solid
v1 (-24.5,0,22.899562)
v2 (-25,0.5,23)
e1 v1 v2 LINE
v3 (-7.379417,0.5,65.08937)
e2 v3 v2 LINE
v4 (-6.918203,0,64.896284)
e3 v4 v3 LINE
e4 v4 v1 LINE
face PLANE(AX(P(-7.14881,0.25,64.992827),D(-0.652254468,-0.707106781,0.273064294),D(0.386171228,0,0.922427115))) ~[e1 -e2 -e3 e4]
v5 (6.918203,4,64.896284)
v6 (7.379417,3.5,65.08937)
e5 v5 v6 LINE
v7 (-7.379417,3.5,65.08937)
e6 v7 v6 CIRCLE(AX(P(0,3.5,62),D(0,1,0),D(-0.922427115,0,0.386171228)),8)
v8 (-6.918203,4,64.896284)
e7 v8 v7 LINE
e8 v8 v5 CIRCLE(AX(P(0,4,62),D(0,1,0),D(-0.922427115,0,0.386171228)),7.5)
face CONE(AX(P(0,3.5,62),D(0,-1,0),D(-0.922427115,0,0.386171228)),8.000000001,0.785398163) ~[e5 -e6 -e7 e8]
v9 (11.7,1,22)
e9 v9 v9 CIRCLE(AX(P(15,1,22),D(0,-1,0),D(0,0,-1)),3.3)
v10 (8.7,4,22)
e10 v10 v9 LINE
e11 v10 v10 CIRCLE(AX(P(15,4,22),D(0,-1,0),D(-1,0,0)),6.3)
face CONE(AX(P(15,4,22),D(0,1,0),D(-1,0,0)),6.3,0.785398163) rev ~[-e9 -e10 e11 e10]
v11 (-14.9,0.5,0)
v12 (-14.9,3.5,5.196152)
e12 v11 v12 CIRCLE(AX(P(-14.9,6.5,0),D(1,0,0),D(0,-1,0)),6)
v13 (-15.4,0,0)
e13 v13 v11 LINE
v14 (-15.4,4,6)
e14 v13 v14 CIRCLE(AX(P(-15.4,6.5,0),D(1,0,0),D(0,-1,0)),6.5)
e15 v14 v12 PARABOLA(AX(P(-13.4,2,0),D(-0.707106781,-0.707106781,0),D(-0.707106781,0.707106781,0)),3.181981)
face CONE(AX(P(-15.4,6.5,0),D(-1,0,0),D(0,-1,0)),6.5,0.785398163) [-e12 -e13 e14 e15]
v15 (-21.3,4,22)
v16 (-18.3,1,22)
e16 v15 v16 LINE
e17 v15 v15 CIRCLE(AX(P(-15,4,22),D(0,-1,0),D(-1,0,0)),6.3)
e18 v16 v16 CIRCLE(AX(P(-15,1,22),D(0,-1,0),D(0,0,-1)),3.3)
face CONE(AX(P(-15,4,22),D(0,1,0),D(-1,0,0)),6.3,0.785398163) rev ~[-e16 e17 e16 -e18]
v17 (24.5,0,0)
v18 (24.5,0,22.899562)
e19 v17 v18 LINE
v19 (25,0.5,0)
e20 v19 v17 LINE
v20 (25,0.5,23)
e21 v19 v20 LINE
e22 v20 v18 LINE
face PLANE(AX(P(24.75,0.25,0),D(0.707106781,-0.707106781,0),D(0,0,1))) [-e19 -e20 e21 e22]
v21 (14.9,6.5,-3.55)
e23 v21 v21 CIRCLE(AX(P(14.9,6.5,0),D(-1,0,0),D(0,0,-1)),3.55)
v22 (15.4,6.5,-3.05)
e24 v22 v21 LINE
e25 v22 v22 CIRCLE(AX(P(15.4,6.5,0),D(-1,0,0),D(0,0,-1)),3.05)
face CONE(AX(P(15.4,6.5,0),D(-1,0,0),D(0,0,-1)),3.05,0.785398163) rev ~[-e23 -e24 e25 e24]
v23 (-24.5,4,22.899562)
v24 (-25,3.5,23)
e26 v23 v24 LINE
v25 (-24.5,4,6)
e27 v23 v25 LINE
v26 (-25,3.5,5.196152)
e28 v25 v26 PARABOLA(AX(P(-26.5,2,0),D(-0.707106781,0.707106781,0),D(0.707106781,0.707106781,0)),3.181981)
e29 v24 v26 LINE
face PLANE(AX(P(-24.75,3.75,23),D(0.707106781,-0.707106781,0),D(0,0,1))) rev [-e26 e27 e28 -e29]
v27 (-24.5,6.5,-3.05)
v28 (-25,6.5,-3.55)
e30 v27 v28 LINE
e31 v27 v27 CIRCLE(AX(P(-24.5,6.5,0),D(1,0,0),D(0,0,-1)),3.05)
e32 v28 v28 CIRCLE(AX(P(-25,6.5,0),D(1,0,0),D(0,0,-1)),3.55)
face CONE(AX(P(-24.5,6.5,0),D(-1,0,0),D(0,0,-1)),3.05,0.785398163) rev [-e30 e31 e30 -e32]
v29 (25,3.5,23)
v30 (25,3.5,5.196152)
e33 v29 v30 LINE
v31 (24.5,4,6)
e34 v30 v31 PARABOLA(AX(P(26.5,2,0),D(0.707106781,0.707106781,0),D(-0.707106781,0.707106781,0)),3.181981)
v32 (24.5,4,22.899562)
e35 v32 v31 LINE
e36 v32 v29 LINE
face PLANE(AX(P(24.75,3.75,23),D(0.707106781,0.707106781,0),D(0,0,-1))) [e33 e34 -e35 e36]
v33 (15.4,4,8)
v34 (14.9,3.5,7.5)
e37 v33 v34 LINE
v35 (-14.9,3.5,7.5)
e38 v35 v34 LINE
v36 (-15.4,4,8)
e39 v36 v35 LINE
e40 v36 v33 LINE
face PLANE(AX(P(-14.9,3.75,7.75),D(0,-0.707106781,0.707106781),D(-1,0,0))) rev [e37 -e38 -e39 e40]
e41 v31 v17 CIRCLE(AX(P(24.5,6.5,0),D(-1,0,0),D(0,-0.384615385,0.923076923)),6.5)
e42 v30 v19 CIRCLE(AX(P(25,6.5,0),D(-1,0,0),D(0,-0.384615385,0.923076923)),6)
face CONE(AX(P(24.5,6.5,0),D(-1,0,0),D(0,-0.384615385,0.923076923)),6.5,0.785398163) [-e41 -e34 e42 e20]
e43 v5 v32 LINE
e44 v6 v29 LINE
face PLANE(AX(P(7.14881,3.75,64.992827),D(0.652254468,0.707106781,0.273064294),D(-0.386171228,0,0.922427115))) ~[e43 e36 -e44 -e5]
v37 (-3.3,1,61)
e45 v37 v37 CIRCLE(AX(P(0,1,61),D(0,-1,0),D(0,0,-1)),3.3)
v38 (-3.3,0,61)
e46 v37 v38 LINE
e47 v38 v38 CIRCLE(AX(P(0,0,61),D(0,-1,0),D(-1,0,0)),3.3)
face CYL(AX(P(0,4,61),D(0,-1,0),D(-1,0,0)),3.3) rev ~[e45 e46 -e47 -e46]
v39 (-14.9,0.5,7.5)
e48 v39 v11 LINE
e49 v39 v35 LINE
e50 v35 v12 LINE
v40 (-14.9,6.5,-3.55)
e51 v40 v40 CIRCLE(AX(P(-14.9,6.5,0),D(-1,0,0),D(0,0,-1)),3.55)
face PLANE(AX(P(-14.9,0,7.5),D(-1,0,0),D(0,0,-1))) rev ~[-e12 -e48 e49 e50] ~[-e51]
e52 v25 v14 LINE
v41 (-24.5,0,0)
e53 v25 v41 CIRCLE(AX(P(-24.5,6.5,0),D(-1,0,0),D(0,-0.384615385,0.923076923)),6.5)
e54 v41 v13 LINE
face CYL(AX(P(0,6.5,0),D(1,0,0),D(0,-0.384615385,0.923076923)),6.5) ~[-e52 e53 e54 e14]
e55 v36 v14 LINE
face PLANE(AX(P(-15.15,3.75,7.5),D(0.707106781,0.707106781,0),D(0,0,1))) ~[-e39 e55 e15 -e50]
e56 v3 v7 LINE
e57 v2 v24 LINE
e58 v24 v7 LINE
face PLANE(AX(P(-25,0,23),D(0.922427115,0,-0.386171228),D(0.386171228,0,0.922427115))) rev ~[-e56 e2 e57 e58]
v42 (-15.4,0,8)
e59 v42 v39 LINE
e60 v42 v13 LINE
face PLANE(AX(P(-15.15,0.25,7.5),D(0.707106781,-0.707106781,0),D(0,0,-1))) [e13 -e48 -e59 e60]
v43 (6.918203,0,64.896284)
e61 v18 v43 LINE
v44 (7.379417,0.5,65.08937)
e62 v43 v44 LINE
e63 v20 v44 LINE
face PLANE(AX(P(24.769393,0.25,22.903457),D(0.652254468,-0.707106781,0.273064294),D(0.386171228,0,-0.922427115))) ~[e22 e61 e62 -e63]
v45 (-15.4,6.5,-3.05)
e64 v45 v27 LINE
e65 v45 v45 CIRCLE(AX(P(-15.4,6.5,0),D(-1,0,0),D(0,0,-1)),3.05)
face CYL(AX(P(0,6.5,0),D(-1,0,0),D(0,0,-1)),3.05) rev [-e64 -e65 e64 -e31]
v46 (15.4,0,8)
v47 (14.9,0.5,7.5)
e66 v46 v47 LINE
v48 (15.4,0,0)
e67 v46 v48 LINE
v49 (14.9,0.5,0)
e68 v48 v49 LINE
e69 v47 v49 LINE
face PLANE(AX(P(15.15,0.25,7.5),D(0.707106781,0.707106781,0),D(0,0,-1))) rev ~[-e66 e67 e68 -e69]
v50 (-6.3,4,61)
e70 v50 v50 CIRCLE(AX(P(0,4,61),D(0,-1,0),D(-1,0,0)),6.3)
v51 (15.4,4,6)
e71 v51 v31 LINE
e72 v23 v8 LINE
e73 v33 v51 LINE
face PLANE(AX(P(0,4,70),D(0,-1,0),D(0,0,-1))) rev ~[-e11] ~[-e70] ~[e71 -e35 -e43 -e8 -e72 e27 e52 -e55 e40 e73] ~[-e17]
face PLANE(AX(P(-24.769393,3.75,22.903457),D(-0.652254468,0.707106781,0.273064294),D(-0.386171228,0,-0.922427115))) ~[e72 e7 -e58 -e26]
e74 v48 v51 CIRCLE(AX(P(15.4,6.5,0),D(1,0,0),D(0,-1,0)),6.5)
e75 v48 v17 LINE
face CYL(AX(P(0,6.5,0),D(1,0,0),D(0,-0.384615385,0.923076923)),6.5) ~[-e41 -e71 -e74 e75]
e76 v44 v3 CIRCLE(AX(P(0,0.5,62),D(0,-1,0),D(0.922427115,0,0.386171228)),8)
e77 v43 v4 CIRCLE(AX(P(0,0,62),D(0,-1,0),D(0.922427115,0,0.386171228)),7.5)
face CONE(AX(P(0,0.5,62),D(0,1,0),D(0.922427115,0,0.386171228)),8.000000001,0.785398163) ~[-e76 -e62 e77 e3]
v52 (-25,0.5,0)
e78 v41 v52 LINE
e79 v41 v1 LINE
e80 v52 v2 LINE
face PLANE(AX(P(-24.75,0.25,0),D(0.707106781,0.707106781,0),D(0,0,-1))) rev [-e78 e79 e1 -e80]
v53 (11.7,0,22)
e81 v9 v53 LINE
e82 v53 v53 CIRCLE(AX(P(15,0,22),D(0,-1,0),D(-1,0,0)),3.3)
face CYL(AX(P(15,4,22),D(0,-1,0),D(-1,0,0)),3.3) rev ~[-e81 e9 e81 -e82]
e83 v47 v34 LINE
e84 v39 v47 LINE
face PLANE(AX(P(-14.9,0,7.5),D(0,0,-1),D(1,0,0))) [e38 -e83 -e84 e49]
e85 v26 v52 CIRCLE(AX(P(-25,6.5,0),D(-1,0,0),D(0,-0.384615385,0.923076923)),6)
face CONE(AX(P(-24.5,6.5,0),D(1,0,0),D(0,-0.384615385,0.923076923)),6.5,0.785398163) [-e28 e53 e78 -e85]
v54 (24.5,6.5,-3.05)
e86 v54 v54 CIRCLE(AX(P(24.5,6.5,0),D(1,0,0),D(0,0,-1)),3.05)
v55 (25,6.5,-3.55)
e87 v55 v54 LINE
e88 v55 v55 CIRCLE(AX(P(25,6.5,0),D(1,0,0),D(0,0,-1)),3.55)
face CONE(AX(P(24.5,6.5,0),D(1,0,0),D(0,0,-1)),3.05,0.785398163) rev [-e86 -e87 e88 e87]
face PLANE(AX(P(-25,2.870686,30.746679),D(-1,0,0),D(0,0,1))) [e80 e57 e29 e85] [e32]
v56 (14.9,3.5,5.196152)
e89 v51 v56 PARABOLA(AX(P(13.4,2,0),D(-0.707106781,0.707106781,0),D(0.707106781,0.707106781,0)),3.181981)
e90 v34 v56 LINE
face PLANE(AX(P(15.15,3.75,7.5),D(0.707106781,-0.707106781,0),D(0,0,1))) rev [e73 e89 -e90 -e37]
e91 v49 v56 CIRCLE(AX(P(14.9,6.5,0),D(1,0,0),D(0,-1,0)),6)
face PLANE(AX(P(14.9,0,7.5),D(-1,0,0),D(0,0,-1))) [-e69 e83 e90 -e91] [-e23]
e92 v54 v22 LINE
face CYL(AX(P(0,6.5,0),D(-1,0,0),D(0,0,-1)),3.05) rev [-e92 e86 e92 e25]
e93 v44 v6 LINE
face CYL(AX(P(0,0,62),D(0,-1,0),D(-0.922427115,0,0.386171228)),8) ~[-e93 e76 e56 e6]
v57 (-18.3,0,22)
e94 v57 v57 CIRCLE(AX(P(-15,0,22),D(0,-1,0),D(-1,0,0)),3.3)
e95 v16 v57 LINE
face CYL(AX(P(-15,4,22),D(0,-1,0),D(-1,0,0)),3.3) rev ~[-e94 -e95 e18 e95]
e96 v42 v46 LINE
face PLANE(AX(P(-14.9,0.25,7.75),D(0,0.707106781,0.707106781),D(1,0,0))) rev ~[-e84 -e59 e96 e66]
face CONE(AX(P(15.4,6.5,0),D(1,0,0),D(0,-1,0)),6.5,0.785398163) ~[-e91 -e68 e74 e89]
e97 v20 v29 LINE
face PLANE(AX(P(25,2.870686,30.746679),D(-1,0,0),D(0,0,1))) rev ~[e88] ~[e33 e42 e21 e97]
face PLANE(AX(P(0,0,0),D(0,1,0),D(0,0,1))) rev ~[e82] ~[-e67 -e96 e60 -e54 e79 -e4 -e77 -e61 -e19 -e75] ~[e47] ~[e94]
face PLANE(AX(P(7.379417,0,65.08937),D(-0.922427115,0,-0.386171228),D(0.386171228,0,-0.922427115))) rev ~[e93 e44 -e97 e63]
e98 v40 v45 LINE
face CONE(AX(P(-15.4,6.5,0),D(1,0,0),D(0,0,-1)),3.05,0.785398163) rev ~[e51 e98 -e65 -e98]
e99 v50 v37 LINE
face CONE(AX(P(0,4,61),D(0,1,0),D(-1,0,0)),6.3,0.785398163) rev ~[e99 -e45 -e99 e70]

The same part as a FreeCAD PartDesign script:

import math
import FreeCAD as App
import Part
import Sketcher

V = App.Vector
Q = App.Units.Quantity


def edges_at(feature, points):
    """Names of the edges that pass closest to the given points."""
    edges = feature.Shape.Edges
    near = lambda p: min(range(len(edges)), key=lambda i: edges[i].distToShape(Part.Vertex(*p))[0])
    return sorted({f"Edge{near(p) + 1}" for p in points})

doc = App.newDocument("Part")
params = doc.addObject("Spreadsheet::Sheet", "Params")
for row, (alias, value) in enumerate([
    ("sketch1_diameter", "6.1 mm"),
    ("sketch1_radius", "6.5 mm"),
    ("sketch1_width", "4 mm"),
    ("sketch1_height", "70 mm"),
    ("pad1_length", "50 mm"),
    ("sketch2_radius", "8 mm"),
    ("sketch2_width", "50 mm"),
    ("sketch2_height", "20 mm"),
    ("sketch2_height2", "57 mm"),
    ("sketch2_width2", "29.8 mm"),
    ("sketch3_diameter", "6.6 mm"),
    ("hole_diameter", "6.6 mm"),
    ("hole_depth", "38.01716 mm"),
    ("hole_csink_diameter", "12.6 mm"),
    ("chamfer_size", "0.5 mm"),
    ("chamfer2_size", "0.5 mm"),
], start=1):
    params.set(f"A{row}", alias)
    params.set(f"B{row}", "=" + value)
    params.setAlias(f"B{row}", alias)

body = doc.addObject("PartDesign::Body", "Body")

sketch1 = doc.addObject("Sketcher::SketchObject", "Sketch")
body.addObject(sketch1)
sketch1.AttachmentSupport = (doc.YZ_Plane, [""])
sketch1.MapMode = "FlatFace"
sketch1.addGeometry([
    Part.LineSegment(V(0, 70, 0), V(0, 0, 0)),
    Part.ArcOfCircle(Part.Circle(V(6.5, 0, 0), V(0, 0, 1), 6.5), math.radians(180), math.radians(473)),
    Part.LineSegment(V(4, 6, 0), V(4, 70, 0)),
    Part.LineSegment(V(4, 70, 0), V(0, 70, 0)),
    Part.Circle(V(6.5, 0, 0), V(0, 0, 1), 3),
], False)
sketch1.addConstraint([
    Sketcher.Constraint("Tangent", 0, 2, 1, 1),
    Sketcher.Constraint("Coincident", 1, 2, 2, 1),
    Sketcher.Constraint("Coincident", 2, 2, 3, 1),
    Sketcher.Constraint("Coincident", 3, 2, 0, 1),
    Sketcher.Constraint("Vertical", 0),
    Sketcher.Constraint("Vertical", 2),
    Sketcher.Constraint("Horizontal", 3),
    Sketcher.Constraint("Coincident", 0, 2, -1, 1),
    Sketcher.Constraint("Coincident", 4, 3, 1, 3),
    Sketcher.Constraint("Diameter", 4, Q("6.1 mm")),
    Sketcher.Constraint("Radius", 1, Q("6.5 mm")),
    Sketcher.Constraint("DistanceX", 3, 2, 3, 1, Q("4 mm")),
    Sketcher.Constraint("DistanceY", 0, 2, 0, 1, Q("70 mm")),
])
sketch1.setExpression("Constraints[9]", "Params.sketch1_diameter")
sketch1.setExpression("Constraints[10]", "Params.sketch1_radius")
sketch1.setExpression("Constraints[11]", "Params.sketch1_width")
sketch1.setExpression("Constraints[12]", "Params.sketch1_height")
pad1 = doc.addObject("PartDesign::Pad", "Pad")
body.addObject(pad1)
pad1.Profile = sketch1
pad1.setExpression("Length", "Params.pad1_length")
pad1.Midplane = True

sketch2 = doc.addObject("Sketcher::SketchObject", "Sketch001")
body.addObject(sketch2)
sketch2.AttachmentSupport = (doc.XZ_Plane, [""])
sketch2.MapMode = "FlatFace"
sketch2.addGeometry([
    Part.LineSegment(V(-15, -12, 0), V(-15, 8, 0)),
    Part.LineSegment(V(-15, 8, 0), V(15, 8, 0)),
    Part.LineSegment(V(15, 8, 0), V(15, -12, 0)),
    Part.LineSegment(V(15, -12, 0), V(-15, -12, 0)),
    Part.LineSegment(V(-7, 65, 0), V(-25, 23, 0)),
    Part.LineSegment(V(-25, 23, 0), V(-25, 80, 0)),
    Part.LineSegment(V(-25, 80, 0), V(25, 80, 0)),
    Part.LineSegment(V(25, 80, 0), V(25, 23, 0)),
    Part.LineSegment(V(25, 23, 0), V(7, 65, 0)),
    Part.ArcOfCircle(Part.Circle(V(0, 62, 0), V(0, 0, 1), 8), math.radians(23), math.radians(157)),
], False)
sketch2.addConstraint([
    Sketcher.Constraint("Coincident", 0, 2, 1, 1),
    Sketcher.Constraint("Coincident", 1, 2, 2, 1),
    Sketcher.Constraint("Coincident", 2, 2, 3, 1),
    Sketcher.Constraint("Coincident", 3, 2, 0, 1),
    Sketcher.Constraint("Coincident", 4, 2, 5, 1),
    Sketcher.Constraint("Coincident", 5, 2, 6, 1),
    Sketcher.Constraint("Coincident", 6, 2, 7, 1),
    Sketcher.Constraint("Coincident", 7, 2, 8, 1),
    Sketcher.Constraint("Tangent", 8, 2, 9, 1),
    Sketcher.Constraint("Tangent", 9, 2, 4, 1),
    Sketcher.Constraint("Vertical", 0),
    Sketcher.Constraint("Horizontal", 1),
    Sketcher.Constraint("Vertical", 2),
    Sketcher.Constraint("Horizontal", 3),
    Sketcher.Constraint("Vertical", 5),
    Sketcher.Constraint("Horizontal", 6),
    Sketcher.Constraint("Vertical", 7),
    Sketcher.Constraint("Symmetric", 4, 2, 7, 2, -2),
    Sketcher.Constraint("PointOnObject", 9, 3, -2),
    Sketcher.Constraint("Radius", 9, Q("8 mm")),
    Sketcher.Constraint("DistanceX", 6, 1, 6, 2, Q("50 mm")),
    Sketcher.Constraint("DistanceY", 0, 1, 0, 2, Q("20 mm")),
    Sketcher.Constraint("DistanceY", 5, 1, 5, 2, Q("57 mm")),
    Sketcher.Constraint("DistanceX", 1, 1, 1, 2, Q("29.8 mm")),
    Sketcher.Constraint("DistanceY", -1, 1, 9, 3, Q("62 mm")),
    Sketcher.Constraint("DistanceY", -1, 1, 4, 2, Q("23 mm")),
    Sketcher.Constraint("DistanceX", 0, 2, -1, 1, Q("14.9 mm")),
    Sketcher.Constraint("DistanceY", -1, 1, 0, 2, Q("7.5 mm")),
])
sketch2.setExpression("Constraints[19]", "Params.sketch2_radius")
sketch2.setExpression("Constraints[20]", "Params.sketch2_width")
sketch2.setExpression("Constraints[21]", "Params.sketch2_height")
sketch2.setExpression("Constraints[22]", "Params.sketch2_height2")
sketch2.setExpression("Constraints[23]", "Params.sketch2_width2")
pocket1 = doc.addObject("PartDesign::Pocket", "Pocket")
body.addObject(pocket1)
pocket1.Profile = sketch2
pocket1.Type = "ThroughAll"

sketch3 = doc.addObject("Sketcher::SketchObject", "Sketch002")
body.addObject(sketch3)
sketch3.AttachmentSupport = (doc.XZ_Plane, [""])
sketch3.MapMode = "FlatFace"
sketch3.AttachmentOffset = App.Placement(V(0, 0, -4), App.Rotation())
sketch3.addGeometry([
    Part.Circle(V(15, 22, 0), V(0, 0, 1), 3.3),
    Part.Circle(V(-15, 22, 0), V(0, 0, 1), 3.3),
    Part.Circle(V(0, 61, 0), V(0, 0, 1), 3.3),
], False)
sketch3.addConstraint([
    Sketcher.Constraint("Equal", 0, 1),
    Sketcher.Constraint("Equal", 1, 2),
    Sketcher.Constraint("Symmetric", 0, 3, 1, 3, -2),
    Sketcher.Constraint("PointOnObject", 2, 3, -2),
    Sketcher.Constraint("Diameter", 0, Q("6.6 mm")),
    Sketcher.Constraint("DistanceX", -1, 1, 0, 3, Q("15 mm")),
    Sketcher.Constraint("DistanceY", -1, 1, 0, 3, Q("22 mm")),
    Sketcher.Constraint("DistanceY", -1, 1, 2, 3, Q("61 mm")),
])
sketch3.setExpression("Constraints[4]", "Params.sketch3_diameter")
doc.recompute()
hole = doc.addObject("PartDesign::Hole", "Hole")
body.addObject(hole)
hole.Profile = sketch3
hole.ThreadType = "None"
hole.setExpression("Diameter", "Params.hole_diameter")
hole.DepthType = "Dimension"
hole.setExpression("Depth", "Params.hole_depth")
hole.DrillPoint = "Angled"
hole.DrillPointAngle = 118
hole.HoleCutType = "Countersink"
hole.setExpression("HoleCutDiameter", "Params.hole_csink_diameter")
hole.HoleCutCountersinkAngle = 90
hole.Reversed = True
doc.recompute()

chamfer = doc.addObject("PartDesign::Chamfer", "Chamfer")
body.addObject(chamfer)
chamfer.Base = (hole, edges_at(hole, [
    (-25, 6.5, 3.05),
    (25, 6.5, 3.05),
    (-14.9, 6.5, 3.05),
    (14.9, 6.5, 3.05),
]))
chamfer.setExpression("Size", "Params.chamfer_size")
doc.recompute()

chamfer2 = doc.addObject("PartDesign::Chamfer", "Chamfer001")
body.addObject(chamfer2)
chamfer2.Base = (chamfer, edges_at(chamfer, [
    (-25, 0, 11.5),
    (25, 0, 11.5),
    (0, 0, 70),
    (0, 0, 7.5),
    (-14.9, 0, 3.75),
    (-14.9, 11.908, -3.606),
    (14.9, 0, 3.75),
    (14.9, 11.908, -3.606),
    (-14.9, 4, 6.75),
    (0, 4, 7.5),
    (14.9, 4, 6.75),
    (16.19, 0, 44.045),
    (-16.19, 0, 44.045),
    (16.19, 4, 44.045),
    (25, 11.908, -3.606),
    (0, 4, 70),
    (-16.19, 4, 44.045),
    (-25, 4, 14.5),
    (-25, 11.908, -3.606),
    (25, 4, 14.5),
]))
chamfer2.setExpression("Size", "Params.chamfer2_size")

doc.recompute()
